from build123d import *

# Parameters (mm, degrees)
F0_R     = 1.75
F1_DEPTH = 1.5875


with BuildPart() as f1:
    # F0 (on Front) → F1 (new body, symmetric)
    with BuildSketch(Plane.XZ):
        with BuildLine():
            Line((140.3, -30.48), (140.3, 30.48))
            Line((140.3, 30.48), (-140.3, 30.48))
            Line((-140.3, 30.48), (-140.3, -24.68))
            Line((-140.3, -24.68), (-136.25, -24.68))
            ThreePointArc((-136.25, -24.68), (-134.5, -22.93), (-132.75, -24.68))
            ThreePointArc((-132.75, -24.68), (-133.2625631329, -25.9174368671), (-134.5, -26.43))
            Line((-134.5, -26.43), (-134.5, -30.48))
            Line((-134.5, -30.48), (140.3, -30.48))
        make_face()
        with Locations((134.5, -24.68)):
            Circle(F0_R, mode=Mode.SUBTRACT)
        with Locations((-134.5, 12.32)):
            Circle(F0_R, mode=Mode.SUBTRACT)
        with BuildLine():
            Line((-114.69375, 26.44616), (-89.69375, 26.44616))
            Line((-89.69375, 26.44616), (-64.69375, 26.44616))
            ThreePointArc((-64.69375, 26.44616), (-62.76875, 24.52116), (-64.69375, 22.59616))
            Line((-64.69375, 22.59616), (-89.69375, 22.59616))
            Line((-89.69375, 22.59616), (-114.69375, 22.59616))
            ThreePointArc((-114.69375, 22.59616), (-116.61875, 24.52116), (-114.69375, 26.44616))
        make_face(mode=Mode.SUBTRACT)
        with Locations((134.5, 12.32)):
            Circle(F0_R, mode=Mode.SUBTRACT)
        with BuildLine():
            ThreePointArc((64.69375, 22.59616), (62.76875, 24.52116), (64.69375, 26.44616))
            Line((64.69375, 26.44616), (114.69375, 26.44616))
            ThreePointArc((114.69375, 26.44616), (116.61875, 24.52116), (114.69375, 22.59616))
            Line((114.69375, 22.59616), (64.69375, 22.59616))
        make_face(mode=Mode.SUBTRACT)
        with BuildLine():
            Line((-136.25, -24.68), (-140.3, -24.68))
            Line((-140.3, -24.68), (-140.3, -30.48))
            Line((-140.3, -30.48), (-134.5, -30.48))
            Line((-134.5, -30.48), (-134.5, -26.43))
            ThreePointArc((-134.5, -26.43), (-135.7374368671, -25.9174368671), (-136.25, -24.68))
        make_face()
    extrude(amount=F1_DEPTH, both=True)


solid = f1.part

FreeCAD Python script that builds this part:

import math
import FreeCAD as App
import Part
import Sketcher
from FreeCAD import Vector
Q = App.Units.Quantity

doc = App.newDocument("Part")
body = doc.addObject("PartDesign::Body", "Body")

# Sketch on XZ plane
sketch1 = doc.addObject("Sketcher::SketchObject", "Sketch")
body.addObject(sketch1)
sketch1.AttachmentSupport = (doc.XZ_Plane, [""])
sketch1.MapMode = "FlatFace"
sketch1.addGeometry([
    Part.LineSegment(Vector(140.3, -30.5, 0), Vector(140.3, 30.5, 0)),  # 0
    Part.LineSegment(Vector(140.3, 30.5, 0), Vector(-140.3, 30.5, 0)),  # 1
    Part.LineSegment(Vector(-140.3, 30.5, 0), Vector(-140.3, -30.5, 0)),  # 2
    Part.LineSegment(Vector(-140.3, -30.5, 0), Vector(140.3, -30.5, 0)),  # 3
    Part.ArcOfCircle(Part.Circle(Vector(-134.5, -24.7, 0), Vector(0, 0, 1), 1.8), math.radians(-90), math.radians(0)),  # 4
    Part.ArcOfCircle(Part.Circle(Vector(-134.5, -24.7, 0), Vector(0, 0, 1), 1.8), math.radians(180), math.radians(270)),  # 5
    Part.ArcOfCircle(Part.Circle(Vector(-134.5, -24.7, 0), Vector(0, 0, 1), 1.8), math.radians(0), math.radians(180)),  # 6
    Part.Circle(Vector(134.5, -24.7, 0), Vector(0, 0, 1), 1.8),  # 7
    Part.Circle(Vector(-134.5, 12.3, 0), Vector(0, 0, 1), 1.8),  # 8
    Part.ArcOfCircle(Part.Circle(Vector(-114.7, 24.5, 0), Vector(0, 0, 1), 1.9), math.radians(90), math.radians(270)),  # 9
    Part.LineSegment(Vector(-114.7, 26.4, 0), Vector(-64.7, 26.4, 0)),  # 10
    Part.ArcOfCircle(Part.Circle(Vector(-64.7, 24.5, 0), Vector(0, 0, 1), 1.9), math.radians(-90), math.radians(90)),  # 11
    Part.LineSegment(Vector(-64.7, 22.6, 0), Vector(-114.7, 22.6, 0)),  # 12
    Part.Circle(Vector(134.5, 12.3, 0), Vector(0, 0, 1), 1.8),  # 13
    Part.LineSegment(Vector(114.7, 22.6, 0), Vector(64.7, 22.6, 0)),  # 14
    Part.ArcOfCircle(Part.Circle(Vector(64.7, 24.5, 0), Vector(0, 0, 1), 1.9), math.radians(90), math.radians(270)),  # 15
    Part.LineSegment(Vector(64.7, 26.4, 0), Vector(114.7, 26.4, 0)),  # 16
    Part.ArcOfCircle(Part.Circle(Vector(114.7, 24.5, 0), Vector(0, 0, 1), 1.9), math.radians(-90), math.radians(90)),  # 17
], False)
sketch1.addConstraint([
    Sketcher.Constraint("Coincident", 0, 2, 1, 1),
    Sketcher.Constraint("Coincident", 1, 2, 2, 1),
    Sketcher.Constraint("Coincident", 2, 2, 3, 1),
    Sketcher.Constraint("Coincident", 3, 2, 0, 1),
    Sketcher.Constraint("Tangent", 4, 1, 5, 2),
    Sketcher.Constraint("Tangent", 5, 1, 6, 2),
    Sketcher.Constraint("Tangent", 6, 1, 4, 2),
    Sketcher.Constraint("Tangent", 9, 1, 10, 1),
    Sketcher.Constraint("Tangent", 10, 2, 11, 2),
    Sketcher.Constraint("Tangent", 11, 1, 12, 1),
    Sketcher.Constraint("Tangent", 12, 2, 9, 2),
    Sketcher.Constraint("Tangent", 14, 2, 15, 2),
    Sketcher.Constraint("Tangent", 15, 1, 16, 1),
    Sketcher.Constraint("Tangent", 16, 2, 17, 2),
    Sketcher.Constraint("Tangent", 17, 1, 14, 1),
    Sketcher.Constraint("Vertical", 0),
    Sketcher.Constraint("Horizontal", 1),
    Sketcher.Constraint("Vertical", 2),
    Sketcher.Constraint("Horizontal", 3),
    Sketcher.Constraint("Horizontal", 10),
    Sketcher.Constraint("Horizontal", 12),
    Sketcher.Constraint("Horizontal", 14),
    Sketcher.Constraint("Horizontal", 16),
    Sketcher.Constraint("Equal", 6, 7),
    Sketcher.Constraint("Equal", 7, 8),
    Sketcher.Constraint("Equal", 8, 13),
    Sketcher.Constraint("Equal", 11, 15),
    Sketcher.Constraint("Symmetric", 0, 2, 2, 2, -1, 1),
    Sketcher.Constraint("Symmetric", 4, 3, 7, 3, -2),
    Sketcher.Constraint("Symmetric", 8, 3, 13, 3, -2),
    Sketcher.Constraint("Symmetric", 11, 3, 15, 3, -2),
    Sketcher.Constraint("Horizontal", 7, 3, 5, 1),
    Sketcher.Constraint("Horizontal", 5, 1, 6, 1),
    Sketcher.Constraint("Vertical", 6, 3, 8, 3),
    Sketcher.Constraint("Vertical", 8, 3, 4, 1),
    Sketcher.Constraint("Equal", 12, 14),
    Sketcher.Constraint("Diameter", 7, Q("3.5 mm")),
    Sketcher.Constraint("DistanceX", 10, 1, 10, 2, Q("50 mm")),
    Sketcher.Constraint("DistanceX", 1, 2, 1, 1, Q("280.6 mm")),
    Sketcher.Constraint("Radius", 9, Q("1.925 mm")),
    Sketcher.Constraint("DistanceX", 4, 3, 7, 3, Q("269 mm")),
    Sketcher.Constraint("DistanceY", 4, 3, 8, 3, Q("37 mm")),
    Sketcher.Constraint("DistanceY", 0, 1, 0, 2, Q("60.96 mm")),
    Sketcher.Constraint("DistanceY", 2, 2, 4, 3, Q("5.8 mm")),
    Sketcher.Constraint("DistanceX", 11, 3, 15, 3, Q("129.3875 mm")),
    Sketcher.Constraint("DistanceY", -1, 1, 9, 3, Q("24.52116 mm")),
])
pad1 = doc.addObject("PartDesign::Pad", "Pad")
body.addObject(pad1)
pad1.Profile = sketch1
pad1.Length = 3.175
pad1.Midplane = True

doc.recompute()
